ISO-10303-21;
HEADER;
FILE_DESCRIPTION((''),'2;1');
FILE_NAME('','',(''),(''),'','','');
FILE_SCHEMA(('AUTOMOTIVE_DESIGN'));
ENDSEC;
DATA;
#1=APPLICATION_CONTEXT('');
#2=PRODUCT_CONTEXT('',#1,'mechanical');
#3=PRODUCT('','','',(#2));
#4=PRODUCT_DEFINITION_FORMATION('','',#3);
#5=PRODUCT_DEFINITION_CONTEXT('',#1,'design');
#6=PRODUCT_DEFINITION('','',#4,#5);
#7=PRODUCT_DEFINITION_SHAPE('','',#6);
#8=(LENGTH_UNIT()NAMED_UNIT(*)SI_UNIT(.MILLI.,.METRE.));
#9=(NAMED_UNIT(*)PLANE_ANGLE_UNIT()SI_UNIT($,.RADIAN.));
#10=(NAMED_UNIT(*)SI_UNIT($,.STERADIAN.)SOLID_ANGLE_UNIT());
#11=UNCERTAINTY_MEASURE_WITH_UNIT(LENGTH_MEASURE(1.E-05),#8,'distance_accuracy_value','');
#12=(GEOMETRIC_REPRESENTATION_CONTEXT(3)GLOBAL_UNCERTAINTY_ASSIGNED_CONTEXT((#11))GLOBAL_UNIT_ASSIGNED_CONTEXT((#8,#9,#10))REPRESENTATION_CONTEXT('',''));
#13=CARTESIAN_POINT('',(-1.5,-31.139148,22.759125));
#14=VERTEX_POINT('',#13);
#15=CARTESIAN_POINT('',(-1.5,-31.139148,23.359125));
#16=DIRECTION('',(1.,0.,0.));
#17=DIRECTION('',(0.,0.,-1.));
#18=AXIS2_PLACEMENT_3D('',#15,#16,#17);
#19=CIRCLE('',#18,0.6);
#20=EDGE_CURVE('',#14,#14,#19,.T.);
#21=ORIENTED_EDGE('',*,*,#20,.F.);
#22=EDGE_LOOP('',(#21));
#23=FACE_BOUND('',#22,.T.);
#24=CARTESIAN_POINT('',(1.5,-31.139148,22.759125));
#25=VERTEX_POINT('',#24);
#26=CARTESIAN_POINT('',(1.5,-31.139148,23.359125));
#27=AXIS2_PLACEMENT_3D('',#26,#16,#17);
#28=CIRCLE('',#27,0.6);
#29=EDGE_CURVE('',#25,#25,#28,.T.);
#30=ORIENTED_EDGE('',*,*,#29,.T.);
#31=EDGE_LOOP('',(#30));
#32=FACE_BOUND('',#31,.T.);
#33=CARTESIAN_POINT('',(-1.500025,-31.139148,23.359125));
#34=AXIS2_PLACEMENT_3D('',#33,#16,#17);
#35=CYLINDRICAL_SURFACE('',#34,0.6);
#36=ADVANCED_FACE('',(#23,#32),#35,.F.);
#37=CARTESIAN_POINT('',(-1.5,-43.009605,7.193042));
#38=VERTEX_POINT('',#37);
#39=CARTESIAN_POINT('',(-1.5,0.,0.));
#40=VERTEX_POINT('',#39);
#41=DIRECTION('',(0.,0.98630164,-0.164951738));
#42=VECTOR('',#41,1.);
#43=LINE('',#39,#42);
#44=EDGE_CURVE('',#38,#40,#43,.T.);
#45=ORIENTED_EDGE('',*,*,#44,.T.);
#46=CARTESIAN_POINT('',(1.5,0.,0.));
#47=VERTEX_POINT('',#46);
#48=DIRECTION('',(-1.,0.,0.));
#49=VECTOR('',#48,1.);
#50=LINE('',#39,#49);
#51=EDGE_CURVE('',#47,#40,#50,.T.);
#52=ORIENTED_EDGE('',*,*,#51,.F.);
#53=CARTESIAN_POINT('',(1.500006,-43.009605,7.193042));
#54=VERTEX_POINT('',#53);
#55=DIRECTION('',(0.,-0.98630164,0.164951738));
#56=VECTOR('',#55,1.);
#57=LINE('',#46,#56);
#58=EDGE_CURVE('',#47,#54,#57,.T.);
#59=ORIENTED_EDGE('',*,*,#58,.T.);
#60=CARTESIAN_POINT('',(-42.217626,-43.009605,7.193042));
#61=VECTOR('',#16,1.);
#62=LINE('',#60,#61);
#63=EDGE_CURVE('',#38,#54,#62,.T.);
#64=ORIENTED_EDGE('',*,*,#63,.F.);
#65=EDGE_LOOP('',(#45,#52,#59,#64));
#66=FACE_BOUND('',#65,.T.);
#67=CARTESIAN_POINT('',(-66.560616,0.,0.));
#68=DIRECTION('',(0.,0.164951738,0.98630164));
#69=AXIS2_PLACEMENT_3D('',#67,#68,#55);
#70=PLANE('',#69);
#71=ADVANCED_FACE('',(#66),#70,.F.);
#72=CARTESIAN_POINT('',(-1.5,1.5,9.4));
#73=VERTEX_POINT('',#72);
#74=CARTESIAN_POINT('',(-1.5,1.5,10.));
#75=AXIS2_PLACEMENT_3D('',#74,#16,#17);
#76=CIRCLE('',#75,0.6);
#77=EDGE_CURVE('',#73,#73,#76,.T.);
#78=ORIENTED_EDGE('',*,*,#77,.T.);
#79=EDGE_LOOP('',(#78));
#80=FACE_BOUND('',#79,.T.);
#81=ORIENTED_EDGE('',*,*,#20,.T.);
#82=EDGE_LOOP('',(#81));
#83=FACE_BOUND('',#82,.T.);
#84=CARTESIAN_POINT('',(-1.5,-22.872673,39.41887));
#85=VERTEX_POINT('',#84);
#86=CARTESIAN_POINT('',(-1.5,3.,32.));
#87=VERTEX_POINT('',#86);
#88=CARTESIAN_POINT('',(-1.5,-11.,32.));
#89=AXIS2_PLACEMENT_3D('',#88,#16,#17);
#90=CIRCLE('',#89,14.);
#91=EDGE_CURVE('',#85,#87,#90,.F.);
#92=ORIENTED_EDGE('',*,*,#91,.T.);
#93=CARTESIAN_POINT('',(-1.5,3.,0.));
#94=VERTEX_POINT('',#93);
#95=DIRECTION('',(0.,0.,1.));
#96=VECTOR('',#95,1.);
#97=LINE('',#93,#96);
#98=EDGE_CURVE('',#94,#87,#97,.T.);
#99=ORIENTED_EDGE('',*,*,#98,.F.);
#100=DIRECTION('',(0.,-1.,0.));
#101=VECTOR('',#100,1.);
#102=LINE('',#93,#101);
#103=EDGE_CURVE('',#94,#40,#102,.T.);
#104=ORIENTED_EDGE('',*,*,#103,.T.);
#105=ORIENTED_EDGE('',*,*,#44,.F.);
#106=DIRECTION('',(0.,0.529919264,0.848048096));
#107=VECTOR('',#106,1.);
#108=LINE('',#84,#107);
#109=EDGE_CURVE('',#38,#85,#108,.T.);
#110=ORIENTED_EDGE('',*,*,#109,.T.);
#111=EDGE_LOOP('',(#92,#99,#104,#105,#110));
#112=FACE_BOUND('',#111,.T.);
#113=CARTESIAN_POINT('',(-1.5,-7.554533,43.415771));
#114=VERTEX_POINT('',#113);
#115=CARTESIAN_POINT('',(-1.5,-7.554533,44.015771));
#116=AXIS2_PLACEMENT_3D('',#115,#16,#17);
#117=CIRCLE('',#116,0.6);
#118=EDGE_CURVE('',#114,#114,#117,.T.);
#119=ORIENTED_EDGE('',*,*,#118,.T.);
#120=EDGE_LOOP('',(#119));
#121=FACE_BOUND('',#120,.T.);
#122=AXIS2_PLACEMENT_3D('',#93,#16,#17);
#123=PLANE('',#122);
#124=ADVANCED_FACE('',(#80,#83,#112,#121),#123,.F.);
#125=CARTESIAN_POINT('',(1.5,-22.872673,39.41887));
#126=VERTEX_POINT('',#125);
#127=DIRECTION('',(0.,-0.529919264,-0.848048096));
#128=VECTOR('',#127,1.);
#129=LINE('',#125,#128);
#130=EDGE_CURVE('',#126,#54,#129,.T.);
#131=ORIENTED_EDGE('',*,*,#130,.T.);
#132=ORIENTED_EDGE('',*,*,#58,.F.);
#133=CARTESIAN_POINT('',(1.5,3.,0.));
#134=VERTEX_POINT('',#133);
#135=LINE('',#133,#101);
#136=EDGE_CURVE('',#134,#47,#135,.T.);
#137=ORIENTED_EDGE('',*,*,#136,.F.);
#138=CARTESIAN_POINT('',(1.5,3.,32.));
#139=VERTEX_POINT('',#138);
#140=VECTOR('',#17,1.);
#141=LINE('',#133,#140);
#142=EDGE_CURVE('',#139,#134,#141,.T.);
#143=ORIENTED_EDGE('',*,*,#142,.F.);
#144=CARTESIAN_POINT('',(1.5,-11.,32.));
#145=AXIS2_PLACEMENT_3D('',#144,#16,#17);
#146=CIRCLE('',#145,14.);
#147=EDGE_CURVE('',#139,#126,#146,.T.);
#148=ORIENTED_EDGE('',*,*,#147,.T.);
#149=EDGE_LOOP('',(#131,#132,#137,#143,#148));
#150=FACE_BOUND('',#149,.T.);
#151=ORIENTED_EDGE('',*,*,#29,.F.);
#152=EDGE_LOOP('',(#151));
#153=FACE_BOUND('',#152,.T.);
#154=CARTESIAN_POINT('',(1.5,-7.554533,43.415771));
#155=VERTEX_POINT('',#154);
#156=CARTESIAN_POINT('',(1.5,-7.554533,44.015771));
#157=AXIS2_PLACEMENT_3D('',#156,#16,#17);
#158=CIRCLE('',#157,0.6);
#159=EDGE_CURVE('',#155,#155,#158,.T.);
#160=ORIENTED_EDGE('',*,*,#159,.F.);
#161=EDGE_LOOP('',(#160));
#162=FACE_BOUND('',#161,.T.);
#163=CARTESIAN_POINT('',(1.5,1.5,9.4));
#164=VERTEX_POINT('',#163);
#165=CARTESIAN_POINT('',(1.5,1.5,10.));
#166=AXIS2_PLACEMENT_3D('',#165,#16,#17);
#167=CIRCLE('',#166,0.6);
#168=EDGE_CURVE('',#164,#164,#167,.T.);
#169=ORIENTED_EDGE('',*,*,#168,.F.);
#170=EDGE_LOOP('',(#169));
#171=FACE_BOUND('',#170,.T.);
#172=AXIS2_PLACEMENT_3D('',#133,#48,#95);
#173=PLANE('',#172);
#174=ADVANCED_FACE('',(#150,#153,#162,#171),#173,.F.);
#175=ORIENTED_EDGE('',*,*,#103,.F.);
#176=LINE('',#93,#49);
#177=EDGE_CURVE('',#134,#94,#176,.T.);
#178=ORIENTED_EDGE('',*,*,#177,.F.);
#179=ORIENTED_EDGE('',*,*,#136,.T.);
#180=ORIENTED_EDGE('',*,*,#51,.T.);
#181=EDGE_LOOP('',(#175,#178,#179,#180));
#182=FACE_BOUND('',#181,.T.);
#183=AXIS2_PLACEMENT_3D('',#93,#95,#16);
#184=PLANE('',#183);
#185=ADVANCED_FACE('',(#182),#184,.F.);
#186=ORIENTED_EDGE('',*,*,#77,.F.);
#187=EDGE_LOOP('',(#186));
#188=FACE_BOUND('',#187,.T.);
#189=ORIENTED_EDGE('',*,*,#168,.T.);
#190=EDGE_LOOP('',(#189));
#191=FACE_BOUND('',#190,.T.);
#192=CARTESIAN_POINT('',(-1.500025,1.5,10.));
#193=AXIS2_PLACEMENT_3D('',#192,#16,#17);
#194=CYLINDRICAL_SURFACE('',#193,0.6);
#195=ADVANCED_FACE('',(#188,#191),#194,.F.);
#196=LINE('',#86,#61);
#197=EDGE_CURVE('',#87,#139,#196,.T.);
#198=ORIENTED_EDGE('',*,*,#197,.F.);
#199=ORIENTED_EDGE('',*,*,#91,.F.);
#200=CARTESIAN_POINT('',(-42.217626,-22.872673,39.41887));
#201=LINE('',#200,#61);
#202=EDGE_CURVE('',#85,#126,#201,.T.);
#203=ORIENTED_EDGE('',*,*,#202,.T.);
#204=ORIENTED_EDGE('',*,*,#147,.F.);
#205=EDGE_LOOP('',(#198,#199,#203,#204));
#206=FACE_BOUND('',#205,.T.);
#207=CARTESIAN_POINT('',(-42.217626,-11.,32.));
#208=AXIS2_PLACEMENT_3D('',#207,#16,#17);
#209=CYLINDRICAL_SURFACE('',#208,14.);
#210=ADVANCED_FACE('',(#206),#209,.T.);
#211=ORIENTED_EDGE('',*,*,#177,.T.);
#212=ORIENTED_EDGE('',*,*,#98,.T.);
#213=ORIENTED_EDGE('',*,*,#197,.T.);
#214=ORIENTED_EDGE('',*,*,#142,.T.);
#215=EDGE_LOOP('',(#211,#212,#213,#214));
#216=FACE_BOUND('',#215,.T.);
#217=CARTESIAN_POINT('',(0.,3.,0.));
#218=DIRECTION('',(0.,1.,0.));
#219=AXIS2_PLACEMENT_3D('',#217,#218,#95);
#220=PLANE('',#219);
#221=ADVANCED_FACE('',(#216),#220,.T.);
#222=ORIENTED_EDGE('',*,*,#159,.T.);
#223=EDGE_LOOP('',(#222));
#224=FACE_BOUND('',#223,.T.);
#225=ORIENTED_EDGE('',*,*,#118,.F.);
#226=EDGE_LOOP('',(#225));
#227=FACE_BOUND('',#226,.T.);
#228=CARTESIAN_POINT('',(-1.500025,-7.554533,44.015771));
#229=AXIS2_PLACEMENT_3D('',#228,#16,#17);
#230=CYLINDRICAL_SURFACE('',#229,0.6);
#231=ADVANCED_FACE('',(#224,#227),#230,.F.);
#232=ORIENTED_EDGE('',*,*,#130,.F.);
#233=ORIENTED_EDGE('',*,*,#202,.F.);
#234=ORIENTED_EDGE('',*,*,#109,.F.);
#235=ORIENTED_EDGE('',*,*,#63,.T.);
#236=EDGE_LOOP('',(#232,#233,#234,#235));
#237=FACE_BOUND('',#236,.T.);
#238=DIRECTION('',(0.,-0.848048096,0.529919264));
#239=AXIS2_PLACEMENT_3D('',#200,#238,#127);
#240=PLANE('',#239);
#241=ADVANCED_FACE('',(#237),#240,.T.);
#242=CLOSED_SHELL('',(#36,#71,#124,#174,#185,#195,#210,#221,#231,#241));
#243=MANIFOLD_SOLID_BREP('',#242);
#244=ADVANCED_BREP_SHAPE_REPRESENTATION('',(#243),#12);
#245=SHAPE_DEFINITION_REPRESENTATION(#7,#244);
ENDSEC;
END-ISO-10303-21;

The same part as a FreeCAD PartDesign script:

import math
import FreeCAD as App
import Part
import Sketcher

V = App.Vector
Q = App.Units.Quantity

doc = App.newDocument("Part")
body = doc.addObject("PartDesign::Body", "Body")

sketch1 = doc.addObject("Sketcher::SketchObject", "Sketch")
body.addObject(sketch1)
sketch1.AttachmentSupport = (doc.XZ_Plane, [""])
sketch1.MapMode = "FlatFace"
sketch1.addGeometry(Part.LineSegment(V(-1.5, 0, 0), V(-1.5, 32, 0)), False)
sketch1.addGeometry(Part.LineSegment(V(-1.5, 32, 0), V(1.5, 32, 0)), False)
sketch1.addGeometry(Part.LineSegment(V(1.5, 32, 0), V(1.5, 0, 0)), False)
sketch1.addGeometry(Part.LineSegment(V(1.5, 0, 0), V(-1.5, 0, 0)), False)
sketch1.addConstraint(Sketcher.Constraint("Coincident", 0, 2, 1, 1))
sketch1.addConstraint(Sketcher.Constraint("Coincident", 1, 2, 2, 1))
sketch1.addConstraint(Sketcher.Constraint("Coincident", 2, 2, 3, 1))
sketch1.addConstraint(Sketcher.Constraint("Coincident", 3, 2, 0, 1))
sketch1.addConstraint(Sketcher.Constraint("Vertical", 0))
sketch1.addConstraint(Sketcher.Constraint("Horizontal", 1))
sketch1.addConstraint(Sketcher.Constraint("Vertical", 2))
sketch1.addConstraint(Sketcher.Constraint("Horizontal", 3))
sketch1.addConstraint(Sketcher.Constraint("Symmetric", 2, 2, 3, 2, -1, 1))
sketch1.addConstraint(Sketcher.Constraint("DistanceX", 1, 1, 1, 2, Q("3 mm")))
sketch1.addConstraint(Sketcher.Constraint("DistanceY", 0, 1, 0, 2, Q("32 mm")))
pad1 = doc.addObject("PartDesign::Pad", "Pad")
body.addObject(pad1)
pad1.Profile = sketch1
pad1.Length = 3
pad1.Reversed = True

sketch2 = doc.addObject("Sketcher::SketchObject", "Sketch001")
body.addObject(sketch2)
sketch2.AttachmentSupport = (doc.YZ_Plane, [""])
sketch2.MapMode = "FlatFace"
sketch2.AttachmentOffset = App.Placement(V(0, 0, 1.5), App.Rotation())
sketch2.addGeometry(Part.ArcOfCircle(Part.Circle(V(-11, 32, 0), V(0, 0, 1), 11), math.radians(0), math.radians(148)), False)
sketch2.addGeometry(Part.LineSegment(V(0, 32, 0), V(0, 23.339746, 0)), False)
sketch2.addGeometry(Part.ArcOfCircle(Part.Circle(V(-11, 32, 0), V(0, 0, 1), 14), math.radians(-38.213211), math.radians(148)), False)
sketch2.addGeometry(Part.LineSegment(V(-22.872673, 39.41887, 0), V(-43.009605, 7.193042, 0)), False)
sketch2.addGeometry(Part.LineSegment(V(-43.009605, 7.193042, 0), V(-40.465461, 5.603284, 0)), False)
sketch2.addGeometry(Part.LineSegment(V(-40.465461, 5.603284, 0), V(-20.328529, 37.829112, 0)), False)
sketch2.addConstraint(Sketcher.Constraint("Tangent", 0, 1, 1, 1))
sketch2.addConstraint(Sketcher.Constraint("Coincident", 1, 2, 2, 1))
sketch2.addConstraint(Sketcher.Constraint("Tangent", 2, 2, 3, 1))
sketch2.addConstraint(Sketcher.Constraint("Coincident", 3, 2, 4, 1))
sketch2.addConstraint(Sketcher.Constraint("Coincident", 4, 2, 5, 1))
sketch2.addConstraint(Sketcher.Constraint("Tangent", 5, 2, 0, 2))
sketch2.addConstraint(Sketcher.Constraint("Vertical", 1))
sketch2.addConstraint(Sketcher.Constraint("Coincident", 2, 3, 0, 3))
sketch2.addConstraint(Sketcher.Constraint("PointOnObject", 0, 1, -2))
sketch2.addConstraint(Sketcher.Constraint("Perpendicular", 3, 4))
sketch2.addConstraint(Sketcher.Constraint("Perpendicular", 4, 5))
sketch2.addConstraint(Sketcher.Constraint("Radius", 0, Q("11 mm")))
sketch2.addConstraint(Sketcher.Constraint("Radius", 2, Q("14 mm")))
sketch2.addConstraint(Sketcher.Constraint("Angle", 3, Q("-122 deg")))
sketch2.addConstraint(Sketcher.Constraint("Distance", 3, Q("38 mm")))
sketch2.addConstraint(Sketcher.Constraint("DistanceY", -1, 1, 0, 3, Q("32 mm")))
pad2 = doc.addObject("PartDesign::Pad", "Pad001")
body.addObject(pad2)
pad2.Profile = sketch2
pad2.Length = 3
pad2.Reversed = True

sketch3 = doc.addObject("Sketcher::SketchObject", "Sketch002")
body.addObject(sketch3)
sketch3.AttachmentSupport = (doc.YZ_Plane, [""])
sketch3.MapMode = "FlatFace"
sketch3.AttachmentOffset = App.Placement(V(0, 0, 1.5), App.Rotation())
sketch3.addGeometry(Part.LineSegment(V(-39.806781, 6.657393, 0), V(0, 0, 0)), False)
sketch3.addGeometry(Part.LineSegment(V(0, 0, 0), V(0, 32, 0)), False)
sketch3.addGeometry(Part.ArcOfCircle(Part.Circle(V(-11, 32, 0), V(0, 0, 1), 11), math.radians(0), math.radians(148)), False)
sketch3.addGeometry(Part.LineSegment(V(-20.328529, 37.829112, 0), V(-39.806781, 6.657393, 0)), False)
sketch3.addConstraint(Sketcher.Constraint("Coincident", 0, 2, 1, 1))
sketch3.addConstraint(Sketcher.Constraint("Tangent", 1, 2, 2, 1))
sketch3.addConstraint(Sketcher.Constraint("Tangent", 2, 2, 3, 1))
sketch3.addConstraint(Sketcher.Constraint("Coincident", 3, 2, 0, 1))
sketch3.addConstraint(Sketcher.Constraint("Vertical", 1))
sketch3.addConstraint(Sketcher.Constraint("Coincident", 0, 2, -1, 1))
sketch3.addConstraint(Sketcher.Constraint("Radius", 2, Q("11 mm")))
sketch3.addConstraint(Sketcher.Constraint("DistanceY", 1, 1, 1, 2, Q("32 mm")))
sketch3.addConstraint(Sketcher.Constraint("Angle", 3, Q("-122 deg")))
sketch3.addConstraint(Sketcher.Constraint("Distance", 0, Q("40.359642 mm")))
pad3 = doc.addObject("PartDesign::Pad", "Pad002")
body.addObject(pad3)
pad3.Profile = sketch3
pad3.Length = 3
pad3.Reversed = True

sketch4 = doc.addObject("Sketcher::SketchObject", "Sketch003")
body.addObject(sketch4)
sketch4.AttachmentSupport = (doc.YZ_Plane, [""])
sketch4.MapMode = "FlatFace"
sketch4.AttachmentOffset = App.Placement(V(0, 0, 1.5), App.Rotation())
sketch4.addGeometry(Part.LineSegment(V(-39.806781, 6.657393, 0), V(-43.009605, 7.193042, 0)), False)
sketch4.addGeometry(Part.LineSegment(V(-43.009605, 7.193042, 0), V(-40.465461, 5.603284, 0)), False)
sketch4.addGeometry(Part.LineSegment(V(-40.465461, 5.603284, 0), V(-39.806781, 6.657393, 0)), False)
sketch4.addConstraint(Sketcher.Constraint("Coincident", 0, 2, 1, 1))
sketch4.addConstraint(Sketcher.Constraint("Coincident", 1, 2, 2, 1))
sketch4.addConstraint(Sketcher.Constraint("Coincident", 2, 2, 0, 1))
sketch4.addConstraint(Sketcher.Constraint("Perpendicular", 1, 2))
sketch4.addConstraint(Sketcher.Constraint("Angle", 1, Q("-32 deg")))
sketch4.addConstraint(Sketcher.Constraint("Distance", 1, Q("3 mm")))
sketch4.addConstraint(Sketcher.Constraint("DistanceX", 1, 2, -1, 1, Q("40.465461 mm")))
sketch4.addConstraint(Sketcher.Constraint("DistanceX", 2, 2, -1, 1, Q("39.806781 mm")))
sketch4.addConstraint(Sketcher.Constraint("DistanceY", -1, 1, 0, 2, Q("7.193042 mm")))
pocket1 = doc.addObject("PartDesign::Pocket", "Pocket")
body.addObject(pocket1)
pocket1.Profile = sketch4
pocket1.Type = "ThroughAll"
pocket1.Midplane = True

sketch5 = doc.addObject("Sketcher::SketchObject", "Sketch004")
body.addObject(sketch5)
sketch5.AttachmentSupport = (doc.YZ_Plane, [""])
sketch5.MapMode = "FlatFace"
sketch5.AttachmentOffset = App.Placement(V(0, 0, 1.5), App.Rotation())
sketch5.addGeometry(Part.Circle(V(1.5, 10, 0), V(0, 0, 1), 0.6), False)
sketch5.addGeometry(Part.Circle(V(-7.554533, 44.015771, 0), V(0, 0, 1), 0.6), False)
sketch5.addGeometry(Part.Circle(V(-31.139148, 23.359125, 0), V(0, 0, 1), 0.6), False)
sketch5.addConstraint(Sketcher.Constraint("Equal", 0, 1))
sketch5.addConstraint(Sketcher.Constraint("Equal", 1, 2))
sketch5.addConstraint(Sketcher.Constraint("Diameter", 0, Q("1.2 mm")))
sketch5.addConstraint(Sketcher.Constraint("DistanceY", -1, 1, 0, 3, Q("10 mm")))
sketch5.addConstraint(Sketcher.Constraint("DistanceX", -1, 1, 0, 3, Q("1.5 mm")))
sketch5.addConstraint(Sketcher.Constraint("DistanceY", -1, 1, 1, 3, Q("44.015771 mm")))
sketch5.addConstraint(Sketcher.Constraint("DistanceX", 1, 3, -1, 1, Q("7.554533 mm")))
sketch5.addConstraint(Sketcher.Constraint("DistanceX", 2, 3, -1, 1, Q("31.139148 mm")))
sketch5.addConstraint(Sketcher.Constraint("DistanceY", -1, 1, 2, 3, Q("23.359125 mm")))
pocket2 = doc.addObject("PartDesign::Pocket", "Pocket001")
body.addObject(pocket2)
pocket2.Profile = sketch5
pocket2.Type = "ThroughAll"

doc.recompute()
